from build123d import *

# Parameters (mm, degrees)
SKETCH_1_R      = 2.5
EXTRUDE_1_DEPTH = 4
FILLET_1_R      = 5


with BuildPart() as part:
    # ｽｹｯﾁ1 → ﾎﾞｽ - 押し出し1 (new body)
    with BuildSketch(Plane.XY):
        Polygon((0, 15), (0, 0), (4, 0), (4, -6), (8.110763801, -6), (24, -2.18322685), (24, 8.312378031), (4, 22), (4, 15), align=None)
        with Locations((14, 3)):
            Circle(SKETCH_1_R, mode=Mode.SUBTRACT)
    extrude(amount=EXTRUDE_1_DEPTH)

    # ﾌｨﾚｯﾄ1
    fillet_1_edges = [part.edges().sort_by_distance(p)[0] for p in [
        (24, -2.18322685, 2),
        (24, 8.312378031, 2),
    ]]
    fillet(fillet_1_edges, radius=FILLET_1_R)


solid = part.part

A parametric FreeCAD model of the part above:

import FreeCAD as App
import Part
import Sketcher

V = App.Vector
Q = App.Units.Quantity


def edges_at(feature, points):
    """Names of the edges that pass closest to the given points."""
    edges = feature.Shape.Edges
    near = lambda p: min(range(len(edges)), key=lambda i: edges[i].distToShape(Part.Vertex(*p))[0])
    return sorted({f"Edge{near(p) + 1}" for p in points})


def add_polygon(sketch, points):
    """Adds a closed chain of lines whose ends are joined by coincident constraints."""
    first, n = sketch.GeometryCount, len(points)
    for a, b in zip(points, points[1:] + points[:1]):
        sketch.addGeometry(Part.LineSegment(App.Vector(*a, 0), App.Vector(*b, 0)), False)
    for i in range(n):
        sketch.addConstraint(Sketcher.Constraint("Coincident", first + i, 2, first + (i + 1) % n, 1))

doc = App.newDocument("Part")
body = doc.addObject("PartDesign::Body", "Body")

sketch1 = body.newObject("Sketcher::SketchObject", "Sketch")
sketch1.AttachmentSupport = (doc.getObject("XY_Plane"), [""])
sketch1.MapMode = "FlatFace"
add_polygon(sketch1, [(0, 15), (0, 0), (4, 0), (4, -6), (8.1, -6), (24, -2.2), (24, 8.3), (4, 22), (4, 15)])
sketch1.addGeometry(Part.Circle(V(14, 3, 0), V(0, 0, 1), 2.5), False)
sketch1.addConstraint(Sketcher.Constraint("Vertical", 0))
sketch1.addConstraint(Sketcher.Constraint("Horizontal", 1))
sketch1.addConstraint(Sketcher.Constraint("Vertical", 2))
sketch1.addConstraint(Sketcher.Constraint("Horizontal", 3))
sketch1.addConstraint(Sketcher.Constraint("Vertical", 5))
sketch1.addConstraint(Sketcher.Constraint("Vertical", 7))
sketch1.addConstraint(Sketcher.Constraint("Horizontal", 8))
sketch1.addConstraint(Sketcher.Constraint("Coincident", 0, 2, -1, 1))
sketch1.addConstraint(Sketcher.Constraint("Vertical", 2, 2, 6, 2))
sketch1.addConstraint(Sketcher.Constraint("Diameter", 9, Q("5 mm")))
sketch1.addConstraint(Sketcher.Constraint("DistanceX", 1, 1, 1, 2, Q("4 mm")))
sketch1.addConstraint(Sketcher.Constraint("DistanceY", 0, 2, 0, 1, Q("15 mm")))
sketch1.addConstraint(Sketcher.Constraint("DistanceY", 2, 2, 2, 1, Q("6 mm")))
sketch1.addConstraint(Sketcher.Constraint("DistanceY", 7, 2, 7, 1, Q("7 mm")))
sketch1.addConstraint(Sketcher.Constraint("DistanceX", -1, 1, 9, 3, Q("14 mm")))
sketch1.addConstraint(Sketcher.Constraint("DistanceY", -1, 1, 9, 3, Q("3 mm")))
sketch1.addConstraint(Sketcher.Constraint("DistanceX", -1, 1, 4, 2, Q("24 mm")))
sketch1.addConstraint(Sketcher.Constraint("DistanceX", 3, 1, 3, 2, Q("4.110764 mm")))
sketch1.addConstraint(Sketcher.Constraint("DistanceY", 5, 1, 5, 2, Q("10.495605 mm")))
sketch1.addConstraint(Sketcher.Constraint("DistanceY", -1, 1, 5, 2, Q("8.312378 mm")))
pad1 = body.newObject("PartDesign::Pad", "Pad")
pad1.Profile = sketch1
pad1.Length = 4
doc.recompute()

fillet = body.newObject("PartDesign::Fillet", "Fillet")
fillet.Base = (pad1, edges_at(pad1, [(24, -2.183, 2), (24, 8.312, 2)]))
fillet.Radius = 5

doc.recompute()
